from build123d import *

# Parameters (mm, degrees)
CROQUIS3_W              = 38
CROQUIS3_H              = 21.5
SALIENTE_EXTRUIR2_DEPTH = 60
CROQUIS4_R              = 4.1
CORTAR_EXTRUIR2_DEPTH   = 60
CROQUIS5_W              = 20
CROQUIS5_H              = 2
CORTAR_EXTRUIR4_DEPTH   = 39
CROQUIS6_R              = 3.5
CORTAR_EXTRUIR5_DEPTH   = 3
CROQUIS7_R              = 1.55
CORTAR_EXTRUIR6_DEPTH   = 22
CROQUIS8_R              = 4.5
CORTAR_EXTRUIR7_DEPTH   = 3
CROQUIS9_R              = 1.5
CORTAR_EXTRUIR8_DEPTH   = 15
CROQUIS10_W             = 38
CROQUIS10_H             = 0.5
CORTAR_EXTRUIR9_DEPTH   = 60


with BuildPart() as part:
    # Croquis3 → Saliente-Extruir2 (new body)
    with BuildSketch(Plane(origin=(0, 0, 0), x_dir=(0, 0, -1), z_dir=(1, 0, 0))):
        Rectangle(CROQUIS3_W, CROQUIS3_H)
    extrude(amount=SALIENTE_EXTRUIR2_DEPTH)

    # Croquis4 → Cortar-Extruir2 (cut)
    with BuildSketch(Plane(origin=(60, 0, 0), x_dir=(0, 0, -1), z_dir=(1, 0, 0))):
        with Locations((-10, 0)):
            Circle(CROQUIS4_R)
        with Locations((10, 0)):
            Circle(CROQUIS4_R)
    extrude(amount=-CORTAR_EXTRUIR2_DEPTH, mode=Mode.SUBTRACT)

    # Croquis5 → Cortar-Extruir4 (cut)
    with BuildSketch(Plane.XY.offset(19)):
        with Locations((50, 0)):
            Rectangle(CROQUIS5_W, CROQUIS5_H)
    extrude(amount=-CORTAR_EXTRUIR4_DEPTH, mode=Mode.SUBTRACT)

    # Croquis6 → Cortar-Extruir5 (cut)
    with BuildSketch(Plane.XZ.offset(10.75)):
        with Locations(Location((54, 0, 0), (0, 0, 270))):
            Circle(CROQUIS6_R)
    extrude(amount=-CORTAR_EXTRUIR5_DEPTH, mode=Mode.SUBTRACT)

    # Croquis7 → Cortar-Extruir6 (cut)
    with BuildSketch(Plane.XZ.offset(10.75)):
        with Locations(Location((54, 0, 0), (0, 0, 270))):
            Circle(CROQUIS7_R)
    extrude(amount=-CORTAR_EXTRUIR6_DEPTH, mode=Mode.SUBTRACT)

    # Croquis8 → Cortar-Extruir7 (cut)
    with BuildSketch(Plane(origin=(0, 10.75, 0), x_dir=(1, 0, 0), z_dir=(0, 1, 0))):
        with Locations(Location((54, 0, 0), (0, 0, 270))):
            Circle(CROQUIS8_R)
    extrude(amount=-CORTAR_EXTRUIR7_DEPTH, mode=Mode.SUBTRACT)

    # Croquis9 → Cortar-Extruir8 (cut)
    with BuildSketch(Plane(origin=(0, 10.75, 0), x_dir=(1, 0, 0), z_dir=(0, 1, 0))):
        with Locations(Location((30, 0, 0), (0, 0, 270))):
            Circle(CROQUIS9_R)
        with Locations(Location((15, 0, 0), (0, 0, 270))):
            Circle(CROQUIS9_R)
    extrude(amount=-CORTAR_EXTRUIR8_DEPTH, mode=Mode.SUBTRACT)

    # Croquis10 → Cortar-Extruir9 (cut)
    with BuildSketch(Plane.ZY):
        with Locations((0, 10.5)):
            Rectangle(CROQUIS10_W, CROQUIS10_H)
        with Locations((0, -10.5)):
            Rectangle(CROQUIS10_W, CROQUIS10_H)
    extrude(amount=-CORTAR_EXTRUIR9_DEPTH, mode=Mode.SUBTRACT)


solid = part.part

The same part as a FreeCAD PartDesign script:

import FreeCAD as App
import Part
import Sketcher

V = App.Vector

doc = App.newDocument("Part")
params = doc.addObject("Spreadsheet::Sheet", "Params")
for row, (alias, value) in enumerate([
    ("sketch1_height", "38 mm"),
    ("sketch1_width", "21.5 mm"),
    ("pad1_length", "60 mm"),
    ("sketch2_diameter", "8.2 mm"),
    ("pocket1_length", "60 mm"),
    ("sketch3_width", "20 mm"),
    ("sketch3_height", "2 mm"),
    ("pocket2_length", "39 mm"),
    ("sketch4_diameter", "7 mm"),
    ("pocket3_length", "3 mm"),
    ("sketch5_diameter", "3.1 mm"),
    ("pocket4_length", "22 mm"),
    ("sketch6_diameter", "9 mm"),
    ("pocket5_length", "3 mm"),
    ("sketch7_diameter", "3 mm"),
    ("pocket6_length", "15 mm"),
    ("sketch8_height", "38 mm"),
    ("sketch8_width", "0.5 mm"),
    ("pocket7_length", "60 mm"),
], start=1):
    params.set(f"A{row}", alias)
    params.set(f"B{row}", "=" + value)
    params.setAlias(f"B{row}", alias)

body = doc.addObject("PartDesign::Body", "Body")

# Sketch on YZ plane
sketch1 = body.newObject("Sketcher::SketchObject", "Sketch")
sketch1.AttachmentSupport = (doc.getObject("YZ_Plane"), [""])
sketch1.MapMode = "FlatFace"
sketch1.addGeometry([
    Part.LineSegment(V(10.75, 19, 0), V(-10.75, 19, 0)),
    Part.LineSegment(V(-10.75, 19, 0), V(-10.75, -19, 0)),
    Part.LineSegment(V(-10.75, -19, 0), V(10.75, -19, 0)),
    Part.LineSegment(V(10.75, -19, 0), V(10.75, 19, 0)),
], False)
sketch1.addConstraint([
    Sketcher.Constraint("Coincident", 0, 2, 1, 1),
    Sketcher.Constraint("Coincident", 1, 2, 2, 1),
    Sketcher.Constraint("Coincident", 2, 2, 3, 1),
    Sketcher.Constraint("Coincident", 3, 2, 0, 1),
    Sketcher.Constraint("Horizontal", 0),
    Sketcher.Constraint("Vertical", 1),
    Sketcher.Constraint("Horizontal", 2),
    Sketcher.Constraint("Vertical", 3),
    Sketcher.Constraint("Symmetric", 0, 2, 2, 2, -1, 1),
    Sketcher.Constraint("DistanceY", 1, 2, 1, 1, 38.0),
    Sketcher.Constraint("DistanceX", 0, 2, 0, 1, 21.5),
])
sketch1.setExpression("Constraints[9]", "Params.sketch1_height")
sketch1.setExpression("Constraints[10]", "Params.sketch1_width")
pad1 = body.newObject("PartDesign::Pad", "Pad")
pad1.Profile = sketch1
pad1.setExpression("Length", "Params.pad1_length")

# Sketch on YZ plane
sketch2 = body.newObject("Sketcher::SketchObject", "Sketch001")
sketch2.AttachmentSupport = (doc.getObject("YZ_Plane"), [""])
sketch2.MapMode = "FlatFace"
sketch2.AttachmentOffset = App.Placement(V(0, 0, 60), App.Rotation())
sketch2.addGeometry([
    Part.Circle(V(0, 10, 0), V(0, 0, 1), 4.1),
    Part.Circle(V(0, -10, 0), V(0, 0, 1), 4.1),
], False)
sketch2.addConstraint([
    Sketcher.Constraint("Equal", 0, 1),
    Sketcher.Constraint("Symmetric", 0, 3, 1, 3, -1, 1),
    Sketcher.Constraint("PointOnObject", 0, 3, -2),
    Sketcher.Constraint("Diameter", 0, 8.2),
    Sketcher.Constraint("DistanceY", -1, 1, 0, 3, 10.0),
])
sketch2.setExpression("Constraints[3]", "Params.sketch2_diameter")
pocket1 = body.newObject("PartDesign::Pocket", "Pocket")
pocket1.Profile = sketch2
pocket1.setExpression("Length", "Params.pocket1_length")

# Sketch on XY plane
sketch3 = body.newObject("Sketcher::SketchObject", "Sketch002")
sketch3.AttachmentSupport = (doc.getObject("XY_Plane"), [""])
sketch3.MapMode = "FlatFace"
sketch3.AttachmentOffset = App.Placement(V(0, 0, 19), App.Rotation())
sketch3.addGeometry([
    Part.LineSegment(V(40, 1, 0), V(40, -1, 0)),
    Part.LineSegment(V(40, -1, 0), V(60, -1, 0)),
    Part.LineSegment(V(60, -1, 0), V(60, 1, 0)),
    Part.LineSegment(V(60, 1, 0), V(40, 1, 0)),
], False)
sketch3.addConstraint([
    Sketcher.Constraint("Coincident", 0, 2, 1, 1),
    Sketcher.Constraint("Coincident", 1, 2, 2, 1),
    Sketcher.Constraint("Coincident", 2, 2, 3, 1),
    Sketcher.Constraint("Coincident", 3, 2, 0, 1),
    Sketcher.Constraint("Vertical", 0),
    Sketcher.Constraint("Horizontal", 1),
    Sketcher.Constraint("Vertical", 2),
    Sketcher.Constraint("Horizontal", 3),
    Sketcher.Constraint("DistanceX", 1, 1, 1, 2, 20.0),
    Sketcher.Constraint("DistanceY", 0, 2, 0, 1, 2.0),
    Sketcher.Constraint("DistanceX", -1, 1, 0, 2, 40.0),
    Sketcher.Constraint("DistanceY", 0, 2, -1, 1, 1.0),
])
sketch3.setExpression("Constraints[8]", "Params.sketch3_width")
sketch3.setExpression("Constraints[9]", "Params.sketch3_height")
pocket2 = body.newObject("PartDesign::Pocket", "Pocket001")
pocket2.Profile = sketch3
pocket2.setExpression("Length", "Params.pocket2_length")

# Sketch on XZ plane
sketch4 = body.newObject("Sketcher::SketchObject", "Sketch003")
sketch4.AttachmentSupport = (doc.getObject("XZ_Plane"), [""])
sketch4.MapMode = "FlatFace"
sketch4.AttachmentOffset = App.Placement(V(0, 0, 10.75), App.Rotation())
sketch4.addGeometry(Part.Circle(V(54, 0, 0), V(0, 0, 1), 3.5), False)
sketch4.addConstraint([
    Sketcher.Constraint("PointOnObject", 0, 3, -1),
    Sketcher.Constraint("Diameter", 0, 7.0),
    Sketcher.Constraint("DistanceX", -1, 1, 0, 3, 54.0),
])
sketch4.setExpression("Constraints[1]", "Params.sketch4_diameter")
pocket3 = body.newObject("PartDesign::Pocket", "Pocket002")
pocket3.Profile = sketch4
pocket3.setExpression("Length", "Params.pocket3_length")

# Sketch on XZ plane
sketch5 = body.newObject("Sketcher::SketchObject", "Sketch004")
sketch5.AttachmentSupport = (doc.getObject("XZ_Plane"), [""])
sketch5.MapMode = "FlatFace"
sketch5.AttachmentOffset = App.Placement(V(0, 0, 10.75), App.Rotation())
sketch5.addGeometry(Part.Circle(V(54, 0, 0), V(0, 0, 1), 1.55), False)
sketch5.addConstraint([
    Sketcher.Constraint("PointOnObject", 0, 3, -1),
    Sketcher.Constraint("Diameter", 0, 3.1),
    Sketcher.Constraint("DistanceX", -1, 1, 0, 3, 54.0),
])
sketch5.setExpression("Constraints[1]", "Params.sketch5_diameter")
pocket4 = body.newObject("PartDesign::Pocket", "Pocket003")
pocket4.Profile = sketch5
pocket4.setExpression("Length", "Params.pocket4_length")

# Sketch on XZ plane
sketch6 = body.newObject("Sketcher::SketchObject", "Sketch005")
sketch6.AttachmentSupport = (doc.getObject("XZ_Plane"), [""])
sketch6.MapMode = "FlatFace"
sketch6.AttachmentOffset = App.Placement(V(0, 0, -10.75), App.Rotation())
sketch6.addGeometry(Part.Circle(V(54, 0, 0), V(0, 0, 1), 4.5), False)
sketch6.addConstraint([
    Sketcher.Constraint("PointOnObject", 0, 3, -1),
    Sketcher.Constraint("Diameter", 0, 9.0),
    Sketcher.Constraint("DistanceX", -1, 1, 0, 3, 54.0),
])
sketch6.setExpression("Constraints[1]", "Params.sketch6_diameter")
pocket5 = body.newObject("PartDesign::Pocket", "Pocket004")
pocket5.Profile = sketch6
pocket5.setExpression("Length", "Params.pocket5_length")
pocket5.Reversed = True

# Sketch on XZ plane
sketch7 = body.newObject("Sketcher::SketchObject", "Sketch006")
sketch7.AttachmentSupport = (doc.getObject("XZ_Plane"), [""])
sketch7.MapMode = "FlatFace"
sketch7.AttachmentOffset = App.Placement(V(0, 0, -10.75), App.Rotation())
sketch7.addGeometry([
    Part.Circle(V(30, 0, 0), V(0, 0, 1), 1.5),
    Part.Circle(V(15, 0, 0), V(0, 0, 1), 1.5),
], False)
sketch7.addConstraint([
    Sketcher.Constraint("Equal", 0, 1),
    Sketcher.Constraint("PointOnObject", 0, 3, -1),
    Sketcher.Constraint("PointOnObject", 1, 3, -1),
    Sketcher.Constraint("Diameter", 0, 3.0),
    Sketcher.Constraint("DistanceX", -1, 1, 0, 3, 30.0),
    Sketcher.Constraint("DistanceX", -1, 1, 1, 3, 15.0),
])
sketch7.setExpression("Constraints[3]", "Params.sketch7_diameter")
pocket6 = body.newObject("PartDesign::Pocket", "Pocket005")
pocket6.Profile = sketch7
pocket6.setExpression("Length", "Params.pocket6_length")
pocket6.Reversed = True

# Sketch on YZ plane
sketch8 = body.newObject("Sketcher::SketchObject", "Sketch007")
sketch8.AttachmentSupport = (doc.getObject("YZ_Plane"), [""])
sketch8.MapMode = "FlatFace"
sketch8.addGeometry([
    Part.LineSegment(V(10.75, -19, 0), V(10.25, -19, 0)),  # 0
    Part.LineSegment(V(10.25, -19, 0), V(10.25, 19, 0)),  # 1
    Part.LineSegment(V(10.25, 19, 0), V(10.75, 19, 0)),  # 2
    Part.LineSegment(V(10.75, 19, 0), V(10.75, -19, 0)),  # 3
    Part.LineSegment(V(-10.25, -19, 0), V(-10.75, -19, 0)),  # 4
    Part.LineSegment(V(-10.75, -19, 0), V(-10.75, 19, 0)),  # 5
    Part.LineSegment(V(-10.75, 19, 0), V(-10.25, 19, 0)),  # 6
    Part.LineSegment(V(-10.25, 19, 0), V(-10.25, -19, 0)),  # 7
], False)
sketch8.addConstraint([
    Sketcher.Constraint("Coincident", 0, 2, 1, 1),
    Sketcher.Constraint("Coincident", 1, 2, 2, 1),
    Sketcher.Constraint("Coincident", 2, 2, 3, 1),
    Sketcher.Constraint("Coincident", 3, 2, 0, 1),
    Sketcher.Constraint("Coincident", 4, 2, 5, 1),
    Sketcher.Constraint("Coincident", 5, 2, 6, 1),
    Sketcher.Constraint("Coincident", 6, 2, 7, 1),
    Sketcher.Constraint("Coincident", 7, 2, 4, 1),
    Sketcher.Constraint("Horizontal", 0),
    Sketcher.Constraint("Vertical", 1),
    Sketcher.Constraint("Horizontal", 2),
    Sketcher.Constraint("Vertical", 3),
    Sketcher.Constraint("Horizontal", 4),
    Sketcher.Constraint("Vertical", 5),
    Sketcher.Constraint("Horizontal", 6),
    Sketcher.Constraint("Vertical", 7),
    Sketcher.Constraint("Symmetric", 2, 2, 4, 2, -1, 1),
    Sketcher.Constraint("Symmetric", 0, 2, 6, 2, -1, 1),
    Sketcher.Constraint("Horizontal", 3, 2, 4, 2),
    Sketcher.Constraint("DistanceY", 1, 1, 1, 2, 38.0),
    Sketcher.Constraint("DistanceX", 0, 2, 0, 1, 0.5),
    Sketcher.Constraint("DistanceX", 4, 2, 0, 2, 21.0),
])
sketch8.setExpression("Constraints[19]", "Params.sketch8_height")
sketch8.setExpression("Constraints[20]", "Params.sketch8_width")
pocket7 = body.newObject("PartDesign::Pocket", "Pocket006")
pocket7.Profile = sketch8
pocket7.setExpression("Length", "Params.pocket7_length")
pocket7.Reversed = True

doc.recompute()
